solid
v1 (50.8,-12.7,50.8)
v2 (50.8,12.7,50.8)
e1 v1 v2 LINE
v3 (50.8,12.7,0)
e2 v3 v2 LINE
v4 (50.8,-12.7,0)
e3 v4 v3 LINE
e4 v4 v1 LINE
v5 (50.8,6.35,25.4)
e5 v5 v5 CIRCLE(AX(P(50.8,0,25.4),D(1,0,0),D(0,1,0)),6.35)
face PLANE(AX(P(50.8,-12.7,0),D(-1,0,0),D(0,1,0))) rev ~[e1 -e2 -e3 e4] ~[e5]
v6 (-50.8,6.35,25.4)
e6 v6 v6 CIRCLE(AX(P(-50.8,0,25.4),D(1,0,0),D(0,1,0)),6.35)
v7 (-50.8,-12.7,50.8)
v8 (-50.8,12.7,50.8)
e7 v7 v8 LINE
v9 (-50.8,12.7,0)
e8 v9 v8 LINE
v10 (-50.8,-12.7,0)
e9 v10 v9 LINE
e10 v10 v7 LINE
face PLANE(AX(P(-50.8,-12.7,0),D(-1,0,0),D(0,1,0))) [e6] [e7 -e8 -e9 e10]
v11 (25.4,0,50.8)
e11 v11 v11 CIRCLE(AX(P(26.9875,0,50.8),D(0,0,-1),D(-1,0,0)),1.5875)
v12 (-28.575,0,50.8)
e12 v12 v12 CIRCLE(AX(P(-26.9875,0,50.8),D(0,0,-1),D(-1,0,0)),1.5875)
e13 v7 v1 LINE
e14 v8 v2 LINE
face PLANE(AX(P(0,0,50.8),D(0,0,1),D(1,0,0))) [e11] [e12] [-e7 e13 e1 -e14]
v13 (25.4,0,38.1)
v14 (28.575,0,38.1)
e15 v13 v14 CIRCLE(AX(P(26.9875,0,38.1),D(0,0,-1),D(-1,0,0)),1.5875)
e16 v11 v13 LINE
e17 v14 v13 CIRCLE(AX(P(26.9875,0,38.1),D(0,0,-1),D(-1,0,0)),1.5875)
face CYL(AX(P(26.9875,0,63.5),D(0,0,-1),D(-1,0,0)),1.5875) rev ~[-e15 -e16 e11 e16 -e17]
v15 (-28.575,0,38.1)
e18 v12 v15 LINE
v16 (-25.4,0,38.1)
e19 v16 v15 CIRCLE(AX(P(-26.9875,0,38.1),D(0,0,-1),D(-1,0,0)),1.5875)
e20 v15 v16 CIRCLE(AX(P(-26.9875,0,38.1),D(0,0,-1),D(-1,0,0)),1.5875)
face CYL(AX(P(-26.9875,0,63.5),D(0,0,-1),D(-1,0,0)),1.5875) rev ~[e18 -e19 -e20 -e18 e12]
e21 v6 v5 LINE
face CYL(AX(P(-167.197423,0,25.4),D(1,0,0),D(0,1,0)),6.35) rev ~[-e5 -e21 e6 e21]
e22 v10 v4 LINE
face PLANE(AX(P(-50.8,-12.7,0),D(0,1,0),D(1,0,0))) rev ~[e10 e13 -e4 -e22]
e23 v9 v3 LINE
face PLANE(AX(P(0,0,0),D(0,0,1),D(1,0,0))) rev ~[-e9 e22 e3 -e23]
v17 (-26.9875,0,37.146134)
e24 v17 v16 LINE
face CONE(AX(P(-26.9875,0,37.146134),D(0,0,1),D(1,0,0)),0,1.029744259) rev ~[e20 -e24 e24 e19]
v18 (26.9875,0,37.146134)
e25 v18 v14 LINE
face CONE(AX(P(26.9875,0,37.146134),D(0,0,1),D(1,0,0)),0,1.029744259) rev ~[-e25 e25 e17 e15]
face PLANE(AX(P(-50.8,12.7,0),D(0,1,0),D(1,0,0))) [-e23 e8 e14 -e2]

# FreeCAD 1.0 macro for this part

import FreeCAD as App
import Part
import Sketcher
from FreeCAD import Vector
Q = App.Units.Quantity


def add_polygon(sketch, points):
    """Adds a closed chain of lines whose ends are joined by coincident constraints."""
    first, n = sketch.GeometryCount, len(points)
    for a, b in zip(points, points[1:] + points[:1]):
        sketch.addGeometry(Part.LineSegment(App.Vector(*a, 0), App.Vector(*b, 0)), False)
    for i in range(n):
        sketch.addConstraint(Sketcher.Constraint("Coincident", first + i, 2, first + (i + 1) % n, 1))

doc = App.newDocument("Part")
body = doc.addObject("PartDesign::Body", "Body")

# Sketch on XY plane
sketch1 = body.newObject("Sketcher::SketchObject", "Sketch")
sketch1.AttachmentSupport = (doc.getObject("XY_Plane"), [""])
sketch1.MapMode = "FlatFace"
add_polygon(sketch1, [(-51, 13), (-51, -13), (51, -13), (51, 13)])  # lines 0-3
sketch1.addConstraint(Sketcher.Constraint("Vertical", 0))
sketch1.addConstraint(Sketcher.Constraint("Horizontal", 1))
sketch1.addConstraint(Sketcher.Constraint("Vertical", 2))
sketch1.addConstraint(Sketcher.Constraint("Horizontal", 3))
sketch1.addConstraint(Sketcher.Constraint("Symmetric", 0, 2, 2, 2, -1, 1))
sketch1.addConstraint(Sketcher.Constraint("DistanceX", 1, 1, 1, 2, Q("4 in")))
sketch1.addConstraint(Sketcher.Constraint("DistanceY", 0, 2, 0, 1, Q("1 in")))
pad1 = body.newObject("PartDesign::Pad", "Pad")
pad1.Profile = sketch1
pad1.Length = Q("2 in")

# Sketch on XY plane
sketch2 = body.newObject("Sketcher::SketchObject", "Sketch001")
sketch2.AttachmentSupport = (doc.getObject("XY_Plane"), [""])
sketch2.MapMode = "FlatFace"
sketch2.AttachmentOffset = App.Placement(Vector(0, 0, 2 * 25.4), App.Rotation())
sketch2.addGeometry(Part.Circle(Vector(-27, 0, 0), Vector(0, 0, 1), 1.6), False)
sketch2.addGeometry(Part.Circle(Vector(27, 0, 0), Vector(0, 0, 1), 1.6), False)
sketch2.addConstraint(Sketcher.Constraint("Equal", 0, 1))
sketch2.addConstraint(Sketcher.Constraint("Symmetric", 0, 3, 1, 3, -1, 1))
sketch2.addConstraint(Sketcher.Constraint("PointOnObject", 0, 3, -1))
sketch2.addConstraint(Sketcher.Constraint("Diameter", 0, Q("0.125 in")))
sketch2.addConstraint(Sketcher.Constraint("DistanceX", 0, 3, -1, 1, Q("1.0625 in")))
doc.recompute()
hole = body.newObject("PartDesign::Hole", "Hole")
hole.Profile = sketch2
hole.ThreadType = "None"
hole.Diameter = Q("0.125 in")
hole.DepthType = "Dimension"
hole.Depth = Q("0.5 in")
hole.DrillPoint = "Angled"
hole.DrillPointAngle = 118

# Sketch on YZ plane
sketch3 = body.newObject("Sketcher::SketchObject", "Sketch002")
sketch3.AttachmentSupport = (doc.getObject("YZ_Plane"), [""])
sketch3.MapMode = "FlatFace"
sketch3.AttachmentOffset = App.Placement(Vector(0, 0, -2 * 25.4), App.Rotation())
sketch3.addGeometry(Part.Circle(Vector(0, 25, 0), Vector(0, 0, 1), 6), False)
sketch3.addConstraint(Sketcher.Constraint("PointOnObject", 0, 3, -2))
sketch3.addConstraint(Sketcher.Constraint("Diameter", 0, Q("0.5 in")))
sketch3.addConstraint(Sketcher.Constraint("DistanceY", -1, 1, 0, 3, Q("1 in")))
doc.recompute()
hole2 = body.newObject("PartDesign::Hole", "Hole001")
hole2.Profile = sketch3
hole2.ThreadType = "None"
hole2.Diameter = Q("0.5 in")
hole2.DepthType = "ThroughAll"
hole2.Reversed = True

doc.recompute()
